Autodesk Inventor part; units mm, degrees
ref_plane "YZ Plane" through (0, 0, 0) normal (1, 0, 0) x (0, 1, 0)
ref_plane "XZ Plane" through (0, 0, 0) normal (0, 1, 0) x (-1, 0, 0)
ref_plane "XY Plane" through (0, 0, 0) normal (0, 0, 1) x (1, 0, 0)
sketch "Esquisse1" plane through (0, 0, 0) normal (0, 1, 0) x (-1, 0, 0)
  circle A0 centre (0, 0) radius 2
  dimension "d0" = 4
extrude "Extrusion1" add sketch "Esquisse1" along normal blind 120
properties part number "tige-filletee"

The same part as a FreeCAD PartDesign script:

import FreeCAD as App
import Part
import Sketcher
from FreeCAD import Vector

doc = App.newDocument("Part")
params = doc.addObject("Spreadsheet::Sheet", "Params")
for row, (alias, value) in enumerate([
    ("sketch1_diameter", "4 mm"),
    ("pad1_length", "120 mm"),
], start=1):
    params.set(f"A{row}", alias)
    params.set(f"B{row}", "=" + value)
    params.setAlias(f"B{row}", alias)

body = doc.addObject("PartDesign::Body", "Body")

sketch1 = body.newObject("Sketcher::SketchObject", "Sketch")
sketch1.AttachmentSupport = (doc.getObject("XZ_Plane"), [""])
sketch1.MapMode = "FlatFace"
sketch1.addGeometry(Part.Circle(Vector(0, 0, 0), Vector(0, 0, 1), 2), False)
sketch1.addConstraint(Sketcher.Constraint("Coincident", 0, 3, -1, 1))
sketch1.addConstraint(Sketcher.Constraint("Diameter", 0, 4.0))
sketch1.setExpression("Constraints[1]", "Params.sketch1_diameter")
pad1 = body.newObject("PartDesign::Pad", "Pad")
pad1.Profile = sketch1
pad1.setExpression("Length", "Params.pad1_length")
pad1.Reversed = True

doc.recompute()
